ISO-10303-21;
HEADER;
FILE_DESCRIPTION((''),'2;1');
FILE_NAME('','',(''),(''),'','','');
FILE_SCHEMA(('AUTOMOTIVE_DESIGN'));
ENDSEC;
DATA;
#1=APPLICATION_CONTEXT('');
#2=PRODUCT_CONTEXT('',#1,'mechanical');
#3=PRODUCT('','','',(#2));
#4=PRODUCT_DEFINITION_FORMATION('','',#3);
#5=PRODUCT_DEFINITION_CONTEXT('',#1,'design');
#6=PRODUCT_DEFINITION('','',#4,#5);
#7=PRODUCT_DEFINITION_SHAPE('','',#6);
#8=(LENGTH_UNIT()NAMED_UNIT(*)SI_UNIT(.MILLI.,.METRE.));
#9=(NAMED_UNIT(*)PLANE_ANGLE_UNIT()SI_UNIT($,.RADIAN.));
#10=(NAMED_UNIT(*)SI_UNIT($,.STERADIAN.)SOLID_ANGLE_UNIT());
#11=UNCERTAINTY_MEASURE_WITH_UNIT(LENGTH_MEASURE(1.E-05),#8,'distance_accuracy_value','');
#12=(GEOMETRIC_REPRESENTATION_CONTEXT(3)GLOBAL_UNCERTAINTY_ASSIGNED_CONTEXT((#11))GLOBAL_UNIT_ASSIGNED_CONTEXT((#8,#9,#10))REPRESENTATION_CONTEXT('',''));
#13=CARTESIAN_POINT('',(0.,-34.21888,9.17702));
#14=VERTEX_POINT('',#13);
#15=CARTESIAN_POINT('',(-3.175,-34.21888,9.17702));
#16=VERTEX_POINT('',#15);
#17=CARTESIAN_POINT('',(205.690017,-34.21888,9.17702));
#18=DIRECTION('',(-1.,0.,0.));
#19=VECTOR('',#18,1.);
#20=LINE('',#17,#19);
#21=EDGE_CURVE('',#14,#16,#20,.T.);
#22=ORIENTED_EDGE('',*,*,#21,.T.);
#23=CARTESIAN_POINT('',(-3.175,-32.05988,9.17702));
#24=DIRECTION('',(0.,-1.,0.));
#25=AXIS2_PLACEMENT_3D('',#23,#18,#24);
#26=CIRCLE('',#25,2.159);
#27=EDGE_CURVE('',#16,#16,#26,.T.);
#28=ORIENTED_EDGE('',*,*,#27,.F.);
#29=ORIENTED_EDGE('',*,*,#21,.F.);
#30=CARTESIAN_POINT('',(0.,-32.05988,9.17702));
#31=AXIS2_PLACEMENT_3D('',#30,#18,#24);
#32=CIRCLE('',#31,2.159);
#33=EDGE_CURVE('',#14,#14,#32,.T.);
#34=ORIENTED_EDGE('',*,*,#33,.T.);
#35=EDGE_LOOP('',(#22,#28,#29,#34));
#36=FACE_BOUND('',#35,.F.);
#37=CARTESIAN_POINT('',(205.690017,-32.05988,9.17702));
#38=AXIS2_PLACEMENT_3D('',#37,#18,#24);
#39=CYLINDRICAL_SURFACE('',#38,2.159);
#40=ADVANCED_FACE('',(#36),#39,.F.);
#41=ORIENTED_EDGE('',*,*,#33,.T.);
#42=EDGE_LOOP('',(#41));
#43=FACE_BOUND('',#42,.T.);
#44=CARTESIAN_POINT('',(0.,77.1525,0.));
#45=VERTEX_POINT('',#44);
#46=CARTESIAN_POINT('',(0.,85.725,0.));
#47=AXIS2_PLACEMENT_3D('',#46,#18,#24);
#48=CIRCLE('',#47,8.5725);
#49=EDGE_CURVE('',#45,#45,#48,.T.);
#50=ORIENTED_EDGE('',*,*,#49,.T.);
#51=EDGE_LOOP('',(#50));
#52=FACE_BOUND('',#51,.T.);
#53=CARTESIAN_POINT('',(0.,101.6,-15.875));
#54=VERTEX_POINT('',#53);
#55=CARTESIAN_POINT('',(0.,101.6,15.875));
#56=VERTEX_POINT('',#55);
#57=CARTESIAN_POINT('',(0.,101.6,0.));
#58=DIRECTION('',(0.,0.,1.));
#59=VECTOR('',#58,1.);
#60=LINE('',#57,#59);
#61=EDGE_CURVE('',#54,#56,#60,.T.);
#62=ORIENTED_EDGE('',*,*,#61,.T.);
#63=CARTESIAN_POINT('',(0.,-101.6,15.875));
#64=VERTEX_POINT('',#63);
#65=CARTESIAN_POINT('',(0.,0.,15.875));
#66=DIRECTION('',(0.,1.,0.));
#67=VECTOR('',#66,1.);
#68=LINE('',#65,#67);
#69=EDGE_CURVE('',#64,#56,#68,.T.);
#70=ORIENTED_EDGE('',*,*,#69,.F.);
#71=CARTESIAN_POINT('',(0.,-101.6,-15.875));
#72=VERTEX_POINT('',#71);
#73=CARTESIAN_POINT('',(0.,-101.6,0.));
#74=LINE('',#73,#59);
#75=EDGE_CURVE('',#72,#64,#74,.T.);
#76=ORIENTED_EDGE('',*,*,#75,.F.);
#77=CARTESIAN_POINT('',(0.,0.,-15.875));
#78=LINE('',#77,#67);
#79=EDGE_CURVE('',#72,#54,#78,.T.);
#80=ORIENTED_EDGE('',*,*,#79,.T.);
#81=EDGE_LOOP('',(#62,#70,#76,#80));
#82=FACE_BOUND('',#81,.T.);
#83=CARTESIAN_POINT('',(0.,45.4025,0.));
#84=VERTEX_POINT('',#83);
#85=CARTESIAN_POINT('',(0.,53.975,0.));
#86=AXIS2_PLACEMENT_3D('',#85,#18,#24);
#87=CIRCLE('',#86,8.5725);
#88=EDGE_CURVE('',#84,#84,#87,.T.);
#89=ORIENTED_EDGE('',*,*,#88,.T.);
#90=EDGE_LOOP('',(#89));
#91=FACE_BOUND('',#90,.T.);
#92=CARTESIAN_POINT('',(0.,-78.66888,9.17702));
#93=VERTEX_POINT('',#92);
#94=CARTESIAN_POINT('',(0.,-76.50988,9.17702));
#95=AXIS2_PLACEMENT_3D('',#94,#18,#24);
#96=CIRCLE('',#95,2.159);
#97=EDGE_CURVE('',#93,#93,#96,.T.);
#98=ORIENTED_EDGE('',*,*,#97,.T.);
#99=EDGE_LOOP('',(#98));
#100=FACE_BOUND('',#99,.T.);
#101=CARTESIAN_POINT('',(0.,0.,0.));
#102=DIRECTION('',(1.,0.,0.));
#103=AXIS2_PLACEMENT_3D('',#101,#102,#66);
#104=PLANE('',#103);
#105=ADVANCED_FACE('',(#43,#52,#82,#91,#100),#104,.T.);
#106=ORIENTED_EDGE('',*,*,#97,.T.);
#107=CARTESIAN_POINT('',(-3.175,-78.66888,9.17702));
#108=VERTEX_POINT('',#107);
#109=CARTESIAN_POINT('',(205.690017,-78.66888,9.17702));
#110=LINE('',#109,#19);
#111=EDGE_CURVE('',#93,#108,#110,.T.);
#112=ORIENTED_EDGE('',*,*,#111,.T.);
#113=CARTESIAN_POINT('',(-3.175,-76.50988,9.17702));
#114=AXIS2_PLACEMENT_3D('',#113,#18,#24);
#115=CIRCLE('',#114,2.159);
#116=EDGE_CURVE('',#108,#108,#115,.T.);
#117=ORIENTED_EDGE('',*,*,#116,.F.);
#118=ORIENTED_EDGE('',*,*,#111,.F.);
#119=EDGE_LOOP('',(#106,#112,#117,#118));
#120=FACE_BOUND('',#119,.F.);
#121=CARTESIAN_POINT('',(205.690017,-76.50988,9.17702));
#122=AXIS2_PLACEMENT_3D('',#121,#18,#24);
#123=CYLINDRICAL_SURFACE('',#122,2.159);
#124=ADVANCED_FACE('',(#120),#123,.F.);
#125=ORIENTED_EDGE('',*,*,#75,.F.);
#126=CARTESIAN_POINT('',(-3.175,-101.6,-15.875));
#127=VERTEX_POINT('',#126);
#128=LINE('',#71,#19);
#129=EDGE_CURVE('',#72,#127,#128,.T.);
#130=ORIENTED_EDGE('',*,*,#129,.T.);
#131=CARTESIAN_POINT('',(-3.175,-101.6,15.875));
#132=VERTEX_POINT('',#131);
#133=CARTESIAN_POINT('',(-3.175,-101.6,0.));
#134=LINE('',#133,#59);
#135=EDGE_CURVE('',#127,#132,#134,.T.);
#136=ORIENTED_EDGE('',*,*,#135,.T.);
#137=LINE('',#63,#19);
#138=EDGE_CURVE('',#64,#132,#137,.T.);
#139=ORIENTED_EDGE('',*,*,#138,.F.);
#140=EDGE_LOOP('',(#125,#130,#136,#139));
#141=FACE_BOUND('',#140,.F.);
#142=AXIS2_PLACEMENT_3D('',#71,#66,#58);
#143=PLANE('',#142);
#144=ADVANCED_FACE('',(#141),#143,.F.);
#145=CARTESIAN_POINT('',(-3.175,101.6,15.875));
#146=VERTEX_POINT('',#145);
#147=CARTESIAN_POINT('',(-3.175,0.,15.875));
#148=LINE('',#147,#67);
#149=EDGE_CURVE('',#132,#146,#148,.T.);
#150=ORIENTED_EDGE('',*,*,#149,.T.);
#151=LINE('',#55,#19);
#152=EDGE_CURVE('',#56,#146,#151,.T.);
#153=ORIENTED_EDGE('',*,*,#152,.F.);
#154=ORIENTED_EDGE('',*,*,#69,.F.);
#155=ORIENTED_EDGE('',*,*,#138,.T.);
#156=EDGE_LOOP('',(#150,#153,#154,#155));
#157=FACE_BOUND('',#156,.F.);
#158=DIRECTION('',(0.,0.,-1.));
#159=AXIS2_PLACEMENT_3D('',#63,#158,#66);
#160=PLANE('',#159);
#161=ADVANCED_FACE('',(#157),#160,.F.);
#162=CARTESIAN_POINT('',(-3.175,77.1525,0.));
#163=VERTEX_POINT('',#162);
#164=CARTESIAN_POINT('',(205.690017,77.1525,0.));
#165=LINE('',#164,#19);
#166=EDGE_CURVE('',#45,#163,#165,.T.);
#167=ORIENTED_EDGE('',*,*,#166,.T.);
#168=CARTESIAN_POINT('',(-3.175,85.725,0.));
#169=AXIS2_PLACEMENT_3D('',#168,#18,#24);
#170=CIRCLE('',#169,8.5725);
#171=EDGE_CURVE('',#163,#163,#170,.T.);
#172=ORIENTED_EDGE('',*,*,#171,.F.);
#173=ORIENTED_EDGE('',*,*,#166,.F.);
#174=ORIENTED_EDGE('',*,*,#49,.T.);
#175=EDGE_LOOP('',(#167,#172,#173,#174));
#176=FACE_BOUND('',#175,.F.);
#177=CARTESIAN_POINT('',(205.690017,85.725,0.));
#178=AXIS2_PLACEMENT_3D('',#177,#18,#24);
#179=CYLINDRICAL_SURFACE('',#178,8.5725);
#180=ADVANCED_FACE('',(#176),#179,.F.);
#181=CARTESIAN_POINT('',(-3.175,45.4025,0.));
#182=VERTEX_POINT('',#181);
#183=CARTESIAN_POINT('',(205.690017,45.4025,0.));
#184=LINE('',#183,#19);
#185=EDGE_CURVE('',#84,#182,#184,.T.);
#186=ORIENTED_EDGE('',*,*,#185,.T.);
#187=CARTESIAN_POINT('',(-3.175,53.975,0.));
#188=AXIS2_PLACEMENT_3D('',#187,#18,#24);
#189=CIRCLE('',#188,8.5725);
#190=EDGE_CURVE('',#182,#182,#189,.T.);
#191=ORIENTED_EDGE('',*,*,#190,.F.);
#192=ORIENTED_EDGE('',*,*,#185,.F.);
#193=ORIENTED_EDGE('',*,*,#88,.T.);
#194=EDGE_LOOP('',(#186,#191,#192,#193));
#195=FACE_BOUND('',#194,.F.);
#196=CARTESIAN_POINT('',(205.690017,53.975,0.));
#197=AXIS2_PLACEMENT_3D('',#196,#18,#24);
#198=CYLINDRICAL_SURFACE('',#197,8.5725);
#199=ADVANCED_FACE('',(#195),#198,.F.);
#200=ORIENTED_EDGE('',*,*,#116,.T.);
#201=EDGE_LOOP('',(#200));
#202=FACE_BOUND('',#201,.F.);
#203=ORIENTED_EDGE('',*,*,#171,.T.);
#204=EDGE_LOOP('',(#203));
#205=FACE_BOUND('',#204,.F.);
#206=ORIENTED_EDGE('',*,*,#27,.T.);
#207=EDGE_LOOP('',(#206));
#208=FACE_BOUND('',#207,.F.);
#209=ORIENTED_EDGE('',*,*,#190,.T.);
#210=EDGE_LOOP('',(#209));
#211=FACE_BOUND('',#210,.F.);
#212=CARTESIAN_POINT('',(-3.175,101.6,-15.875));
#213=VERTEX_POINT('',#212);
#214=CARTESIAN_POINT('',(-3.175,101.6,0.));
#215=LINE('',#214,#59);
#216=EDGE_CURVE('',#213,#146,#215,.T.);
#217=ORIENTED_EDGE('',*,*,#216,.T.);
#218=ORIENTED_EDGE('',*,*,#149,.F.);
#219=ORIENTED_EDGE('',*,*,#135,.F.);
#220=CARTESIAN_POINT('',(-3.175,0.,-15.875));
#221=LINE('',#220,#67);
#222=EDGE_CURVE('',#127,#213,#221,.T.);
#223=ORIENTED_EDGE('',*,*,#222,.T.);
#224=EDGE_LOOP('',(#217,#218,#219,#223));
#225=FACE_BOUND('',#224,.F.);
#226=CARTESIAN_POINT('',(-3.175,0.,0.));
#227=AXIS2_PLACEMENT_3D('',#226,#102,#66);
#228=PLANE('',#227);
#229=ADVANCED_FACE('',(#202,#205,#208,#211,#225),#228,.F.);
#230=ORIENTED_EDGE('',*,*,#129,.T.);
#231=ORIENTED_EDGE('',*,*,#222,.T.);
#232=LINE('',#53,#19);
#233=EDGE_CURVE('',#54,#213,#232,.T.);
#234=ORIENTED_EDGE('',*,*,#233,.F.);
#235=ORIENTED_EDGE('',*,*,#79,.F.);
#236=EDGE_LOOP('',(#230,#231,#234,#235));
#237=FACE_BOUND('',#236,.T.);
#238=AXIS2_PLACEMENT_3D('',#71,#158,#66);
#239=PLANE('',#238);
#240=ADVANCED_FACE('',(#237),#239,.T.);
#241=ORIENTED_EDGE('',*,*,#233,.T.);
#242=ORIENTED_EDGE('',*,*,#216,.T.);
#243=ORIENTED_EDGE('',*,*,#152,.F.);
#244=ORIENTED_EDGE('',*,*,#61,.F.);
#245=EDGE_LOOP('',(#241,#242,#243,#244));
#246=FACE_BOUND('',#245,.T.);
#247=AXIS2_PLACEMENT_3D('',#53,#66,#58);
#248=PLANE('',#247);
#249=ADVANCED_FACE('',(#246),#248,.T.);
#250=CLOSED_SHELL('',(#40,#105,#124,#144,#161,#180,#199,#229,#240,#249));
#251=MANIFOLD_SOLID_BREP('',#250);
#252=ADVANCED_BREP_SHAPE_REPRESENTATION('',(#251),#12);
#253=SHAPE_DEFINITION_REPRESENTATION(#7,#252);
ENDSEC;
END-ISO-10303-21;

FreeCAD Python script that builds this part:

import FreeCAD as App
import Part
import Sketcher
from FreeCAD import Vector
Q = App.Units.Quantity

doc = App.newDocument("Part")
body = doc.addObject("PartDesign::Body", "Body")

# Sketch on YZ plane
sketch1 = doc.addObject("Sketcher::SketchObject", "Sketch")
body.addObject(sketch1)
sketch1.AttachmentSupport = (doc.YZ_Plane, [""])
sketch1.MapMode = "FlatFace"
sketch1.addGeometry([
    Part.LineSegment(Vector(-102, 16, 0), Vector(-102, -16, 0)),
    Part.LineSegment(Vector(-102, -16, 0), Vector(102, -16, 0)),
    Part.LineSegment(Vector(102, -16, 0), Vector(102, 16, 0)),
    Part.LineSegment(Vector(102, 16, 0), Vector(-102, 16, 0)),
], False)
sketch1.addConstraint([
    Sketcher.Constraint("Coincident", 0, 2, 1, 1),
    Sketcher.Constraint("Coincident", 1, 2, 2, 1),
    Sketcher.Constraint("Coincident", 2, 2, 3, 1),
    Sketcher.Constraint("Coincident", 3, 2, 0, 1),
    Sketcher.Constraint("Vertical", 0),
    Sketcher.Constraint("Horizontal", 1),
    Sketcher.Constraint("Vertical", 2),
    Sketcher.Constraint("Horizontal", 3),
    Sketcher.Constraint("Symmetric", 0, 2, 2, 2, -1, 1),
    Sketcher.Constraint("DistanceX", 1, 1, 1, 2, Q("8 in")),
    Sketcher.Constraint("DistanceY", 0, 2, 0, 1, Q("1.25 in")),
])
pad1 = doc.addObject("PartDesign::Pad", "Pad")
body.addObject(pad1)
pad1.Profile = sketch1
pad1.Length = Q("0.125 in")
pad1.Reversed = True

# Sketch on YZ plane
sketch2 = doc.addObject("Sketcher::SketchObject", "Sketch001")
body.addObject(sketch2)
sketch2.AttachmentSupport = (doc.YZ_Plane, [""])
sketch2.MapMode = "FlatFace"
sketch2.addGeometry([
    Part.Circle(Vector(86, 0, 0), Vector(0, 0, 1), 9),
    Part.Circle(Vector(54, 0, 0), Vector(0, 0, 1), 9),
], False)
sketch2.addConstraint([
    Sketcher.Constraint("Equal", 0, 1),
    Sketcher.Constraint("PointOnObject", 0, 3, -1),
    Sketcher.Constraint("PointOnObject", 1, 3, -1),
    Sketcher.Constraint("Diameter", 0, Q("0.675 in")),
    Sketcher.Constraint("DistanceX", 1, 3, 0, 3, Q("1.25 in")),
    Sketcher.Constraint("DistanceX", -1, 1, 0, 3, Q("3.375 in")),
])
doc.recompute()
hole = doc.addObject("PartDesign::Hole", "Hole")
body.addObject(hole)
hole.Profile = sketch2
hole.ThreadType = "None"
hole.Diameter = Q("0.675 in")
hole.DepthType = "ThroughAll"

# Sketch on YZ plane
sketch3 = doc.addObject("Sketcher::SketchObject", "Sketch002")
body.addObject(sketch3)
sketch3.AttachmentSupport = (doc.YZ_Plane, [""])
sketch3.MapMode = "FlatFace"
sketch3.addGeometry([
    Part.Circle(Vector(-76.5, 9.2, 0), Vector(0, 0, 1), 2.2),
    Part.Circle(Vector(-32.1, 9.2, 0), Vector(0, 0, 1), 2.2),
], False)
sketch3.addConstraint([
    Sketcher.Constraint("Equal", 0, 1),
    Sketcher.Constraint("Horizontal", 0, 3, 1, 3),
    Sketcher.Constraint("Diameter", 0, Q("0.17 in")),
    Sketcher.Constraint("DistanceX", 0, 3, 1, 3, Q("1.75 in")),
    Sketcher.Constraint("DistanceX", 0, 3, -1, 1, Q("3.0122 in")),
    Sketcher.Constraint("DistanceY", -1, 1, 0, 3, Q("0.3613 in")),
])
doc.recompute()
hole2 = doc.addObject("PartDesign::Hole", "Hole001")
body.addObject(hole2)
hole2.Profile = sketch3
hole2.ThreadType = "None"
hole2.Diameter = Q("0.17 in")
hole2.DepthType = "ThroughAll"

doc.recompute()
